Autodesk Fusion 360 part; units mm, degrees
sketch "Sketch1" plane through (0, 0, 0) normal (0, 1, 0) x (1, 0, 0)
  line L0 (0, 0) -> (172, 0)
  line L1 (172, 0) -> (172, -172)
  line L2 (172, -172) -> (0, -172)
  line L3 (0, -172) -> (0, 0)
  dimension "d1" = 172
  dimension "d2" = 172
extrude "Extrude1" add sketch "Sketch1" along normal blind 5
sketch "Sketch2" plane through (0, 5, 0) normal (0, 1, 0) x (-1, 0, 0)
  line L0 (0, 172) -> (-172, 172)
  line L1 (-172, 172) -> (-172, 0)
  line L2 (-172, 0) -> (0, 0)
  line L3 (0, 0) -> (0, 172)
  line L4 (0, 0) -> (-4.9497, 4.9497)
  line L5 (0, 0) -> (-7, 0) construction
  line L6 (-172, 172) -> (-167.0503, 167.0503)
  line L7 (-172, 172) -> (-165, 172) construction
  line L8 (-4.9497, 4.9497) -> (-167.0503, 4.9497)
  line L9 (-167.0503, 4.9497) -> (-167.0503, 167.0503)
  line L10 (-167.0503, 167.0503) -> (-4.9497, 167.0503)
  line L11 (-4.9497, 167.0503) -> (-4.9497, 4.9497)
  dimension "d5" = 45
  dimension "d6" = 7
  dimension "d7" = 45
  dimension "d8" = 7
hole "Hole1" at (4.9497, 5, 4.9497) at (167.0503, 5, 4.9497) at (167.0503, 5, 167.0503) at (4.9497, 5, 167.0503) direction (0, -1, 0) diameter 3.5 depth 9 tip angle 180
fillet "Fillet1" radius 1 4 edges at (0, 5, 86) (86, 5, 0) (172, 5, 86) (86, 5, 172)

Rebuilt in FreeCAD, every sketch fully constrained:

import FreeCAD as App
import Part
import Sketcher
Q = App.Units.Quantity


def edges_at(feature, points):
    """Names of the edges that pass closest to the given points."""
    edges = feature.Shape.Edges
    near = lambda p: min(range(len(edges)), key=lambda i: edges[i].distToShape(Part.Vertex(*p))[0])
    return sorted({f"Edge{near(p) + 1}" for p in points})

doc = App.newDocument("Part")
body = doc.addObject("PartDesign::Body", "Body")

# Sketch on XZ plane
sketch1 = body.newObject("Sketcher::SketchObject", "Sketch")
sketch1.AttachmentSupport = (doc.getObject("XZ_Plane"), [""])
sketch1.MapMode = "FlatFace"
sketch1.addGeometry(Part.LineSegment(App.Vector(172, 0, 0), App.Vector(0, 0, 0)), False)
sketch1.addGeometry(Part.LineSegment(App.Vector(0, 0, 0), App.Vector(0, 172, 0)), False)
sketch1.addGeometry(Part.LineSegment(App.Vector(0, 172, 0), App.Vector(172, 172, 0)), False)
sketch1.addGeometry(Part.LineSegment(App.Vector(172, 172, 0), App.Vector(172, 0, 0)), False)
sketch1.addConstraint(Sketcher.Constraint("Coincident", 0, 2, 1, 1))
sketch1.addConstraint(Sketcher.Constraint("Coincident", 1, 2, 2, 1))
sketch1.addConstraint(Sketcher.Constraint("Coincident", 2, 2, 3, 1))
sketch1.addConstraint(Sketcher.Constraint("Coincident", 3, 2, 0, 1))
sketch1.addConstraint(Sketcher.Constraint("Horizontal", 0))
sketch1.addConstraint(Sketcher.Constraint("Vertical", 1))
sketch1.addConstraint(Sketcher.Constraint("Horizontal", 2))
sketch1.addConstraint(Sketcher.Constraint("Vertical", 3))
sketch1.addConstraint(Sketcher.Constraint("Coincident", 0, 2, -1, 1))
sketch1.addConstraint(Sketcher.Constraint("Equal", 2, 1))
sketch1.addConstraint(Sketcher.Constraint("DistanceX", 0, 2, 0, 1, Q("172 mm")))
pad1 = body.newObject("PartDesign::Pad", "Pad")
pad1.Profile = sketch1
pad1.Length = 5
pad1.Reversed = True

# Sketch on XZ plane
sketch2 = body.newObject("Sketcher::SketchObject", "Sketch001")
sketch2.AttachmentSupport = (doc.getObject("XZ_Plane"), [""])
sketch2.MapMode = "FlatFace"
sketch2.AttachmentOffset = App.Placement(App.Vector(0, 0, -5), App.Rotation())
sketch2.addGeometry(Part.Circle(App.Vector(4.9, 4.9, 0), App.Vector(0, 0, 1), 1.8), False)
sketch2.addGeometry(Part.Circle(App.Vector(167.1, 4.9, 0), App.Vector(0, 0, 1), 1.8), False)
sketch2.addGeometry(Part.Circle(App.Vector(167.1, 167.1, 0), App.Vector(0, 0, 1), 1.8), False)
sketch2.addGeometry(Part.Circle(App.Vector(4.9, 167.1, 0), App.Vector(0, 0, 1), 1.8), False)
sketch2.addConstraint(Sketcher.Constraint("Equal", 0, 1))
sketch2.addConstraint(Sketcher.Constraint("Equal", 1, 2))
sketch2.addConstraint(Sketcher.Constraint("Equal", 2, 3))
sketch2.addConstraint(Sketcher.Constraint("Horizontal", 0, 3, 1, 3))
sketch2.addConstraint(Sketcher.Constraint("Horizontal", 2, 3, 3, 3))
sketch2.addConstraint(Sketcher.Constraint("Vertical", 1, 3, 2, 3))
sketch2.addConstraint(Sketcher.Constraint("Vertical", 0, 3, 3, 3))
sketch2.addConstraint(Sketcher.Constraint("Diameter", 0, Q("3.5 mm")))
sketch2.addConstraint(Sketcher.Constraint("DistanceX", -1, 1, 0, 3, Q("4.9497 mm")))
sketch2.addConstraint(Sketcher.Constraint("DistanceY", -1, 1, 0, 3, Q("4.9497 mm")))
sketch2.addConstraint(Sketcher.Constraint("DistanceX", -1, 1, 1, 3, Q("167.0503 mm")))
sketch2.addConstraint(Sketcher.Constraint("DistanceY", -1, 1, 2, 3, Q("167.0503 mm")))
doc.recompute()
hole = body.newObject("PartDesign::Hole", "Hole")
hole.Profile = sketch2
hole.ThreadType = "None"
hole.Diameter = 3.5
hole.DepthType = "Dimension"
hole.Depth = 9
hole.DrillPoint = "Flat"
hole.Reversed = True
doc.recompute()

fillet = body.newObject("PartDesign::Fillet", "Fillet")
fillet.Base = (hole, edges_at(hole, [
    (0, 5, 86),
    (86, 5, 0),
    (172, 5, 86),
    (86, 5, 172),
]))
fillet.Radius = 1

doc.recompute()
